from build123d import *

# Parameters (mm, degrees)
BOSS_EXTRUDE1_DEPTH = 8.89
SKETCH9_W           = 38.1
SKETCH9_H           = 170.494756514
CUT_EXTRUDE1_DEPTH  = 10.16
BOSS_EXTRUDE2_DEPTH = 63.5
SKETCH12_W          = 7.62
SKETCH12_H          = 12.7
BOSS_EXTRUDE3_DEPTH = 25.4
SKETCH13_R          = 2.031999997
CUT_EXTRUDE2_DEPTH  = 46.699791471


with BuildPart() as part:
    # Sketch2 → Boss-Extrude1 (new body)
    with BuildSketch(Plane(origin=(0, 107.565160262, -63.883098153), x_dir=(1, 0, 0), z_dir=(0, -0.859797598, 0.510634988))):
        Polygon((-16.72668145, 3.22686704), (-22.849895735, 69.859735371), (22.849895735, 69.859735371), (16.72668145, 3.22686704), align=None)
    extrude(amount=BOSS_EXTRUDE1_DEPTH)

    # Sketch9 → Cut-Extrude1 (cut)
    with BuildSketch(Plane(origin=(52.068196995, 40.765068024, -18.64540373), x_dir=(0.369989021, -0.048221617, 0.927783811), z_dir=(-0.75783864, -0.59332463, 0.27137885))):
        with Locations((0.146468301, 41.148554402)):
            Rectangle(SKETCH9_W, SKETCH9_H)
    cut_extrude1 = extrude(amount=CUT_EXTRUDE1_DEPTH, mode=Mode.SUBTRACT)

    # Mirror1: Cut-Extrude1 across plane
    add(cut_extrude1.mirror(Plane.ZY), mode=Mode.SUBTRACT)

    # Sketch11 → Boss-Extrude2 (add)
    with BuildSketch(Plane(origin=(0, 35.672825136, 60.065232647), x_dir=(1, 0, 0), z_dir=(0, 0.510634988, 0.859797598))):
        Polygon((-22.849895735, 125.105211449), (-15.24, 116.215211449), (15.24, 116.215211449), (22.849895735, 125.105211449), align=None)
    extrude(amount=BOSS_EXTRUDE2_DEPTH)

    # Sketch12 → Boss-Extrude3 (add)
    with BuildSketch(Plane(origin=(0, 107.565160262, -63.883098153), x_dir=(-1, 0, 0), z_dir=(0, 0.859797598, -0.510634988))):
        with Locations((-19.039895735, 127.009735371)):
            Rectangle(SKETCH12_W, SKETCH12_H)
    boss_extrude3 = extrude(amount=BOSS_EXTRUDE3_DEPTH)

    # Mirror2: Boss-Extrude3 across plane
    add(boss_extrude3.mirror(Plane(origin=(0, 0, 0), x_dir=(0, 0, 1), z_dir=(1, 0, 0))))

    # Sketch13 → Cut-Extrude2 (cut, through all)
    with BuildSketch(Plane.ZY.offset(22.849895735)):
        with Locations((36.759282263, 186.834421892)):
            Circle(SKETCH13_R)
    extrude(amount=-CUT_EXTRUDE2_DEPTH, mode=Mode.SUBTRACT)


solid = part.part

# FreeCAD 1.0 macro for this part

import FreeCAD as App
import Part
import Sketcher

V = App.Vector
Q = App.Units.Quantity


def add_polygon(sketch, points):
    """Adds a closed chain of lines whose ends are joined by coincident constraints."""
    first, n = sketch.GeometryCount, len(points)
    for a, b in zip(points, points[1:] + points[:1]):
        sketch.addGeometry(Part.LineSegment(App.Vector(*a, 0), App.Vector(*b, 0)), False)
    for i in range(n):
        sketch.addConstraint(Sketcher.Constraint("Coincident", first + i, 2, first + (i + 1) % n, 1))

doc = App.newDocument("Part")
body = doc.addObject("PartDesign::Body", "Body")

sketch1 = doc.addObject("Sketcher::SketchObject", "Sketch")
body.addObject(sketch1)
sketch1.Placement = App.Placement(V(0, 107.56516, -63.883098), App.Rotation(V(1, 0, 0), V(0, 0.510634988, 0.859797598), V(0, -0.859797598, 0.510634988), "ZXY"))
add_polygon(sketch1, [(-23, 70), (-17, 3), (17, 3), (23, 70)])
sketch1.addConstraint([
    Sketcher.Constraint("Horizontal", 1),
    Sketcher.Constraint("Horizontal", 3),
    Sketcher.Constraint("Equal", 0, 2),
    Sketcher.Constraint("DistanceX", 3, 2, 3, 1, 45.699791),
    Sketcher.Constraint("DistanceX", 1, 1, 1, 2, 33.453363),
    Sketcher.Constraint("DistanceX", 0, 2, -1, 1, 16.726681),
    Sketcher.Constraint("DistanceY", 1, 2, 2, 2, 66.632868),
    Sketcher.Constraint("DistanceY", -1, 1, 0, 2, 3.226867),
])
pad1 = doc.addObject("PartDesign::Pad", "Pad")
body.addObject(pad1)
pad1.Profile = sketch1
pad1.Length = Q("0.35 in")

sketch2 = doc.addObject("Sketcher::SketchObject", "Sketch001")
body.addObject(sketch2)
sketch2.Placement = App.Placement(V(52.068197, 40.765068, -18.645404), App.Rotation(V(0.369989021, -0.048221617, 0.927783811), V(-0.537390659, 0.803517617, 0.256067804), V(-0.75783864, -0.59332463, 0.27137885), "ZXY"))
add_polygon(sketch2, [(-19, 126), (-19, -44), (19, -44), (19, 126)])
sketch2.addConstraint([
    Sketcher.Constraint("Vertical", 0),
    Sketcher.Constraint("Horizontal", 1),
    Sketcher.Constraint("Vertical", 2),
    Sketcher.Constraint("Horizontal", 3),
    Sketcher.Constraint("DistanceX", 1, 1, 1, 2, Q("1.5 in")),
    Sketcher.Constraint("DistanceY", 0, 2, 0, 1, 170.494757),
    Sketcher.Constraint("DistanceX", 0, 2, -1, 1, 18.903532),
    Sketcher.Constraint("DistanceY", 0, 2, -1, 1, 44.098824),
])
pocket1 = doc.addObject("PartDesign::Pocket", "Pocket")
body.addObject(pocket1)
pocket1.Profile = sketch2
pocket1.Length = Q("0.4 in")
pocket1.Reversed = True
doc.recompute()

mirrored = doc.addObject("PartDesign::Mirrored", "Mirrored")
body.addObject(mirrored)
mirrored.Originals = [pocket1]
mirrored.MirrorPlane = (doc.YZ_Plane, [""])
body.Tip = mirrored

sketch3 = doc.addObject("Sketcher::SketchObject", "Sketch002")
body.addObject(sketch3)
sketch3.Placement = App.Placement(V(0, 35.672825, 60.065233), App.Rotation(V(1, 0, 0), V(0, 0.859797598, -0.510634988), V(0, 0.510634988, 0.859797598), "ZXY"))
add_polygon(sketch3, [(-23, 125), (-15, 116), (15, 116), (23, 125)])
sketch3.addConstraint([
    Sketcher.Constraint("Horizontal", 1),
    Sketcher.Constraint("Horizontal", 3),
    Sketcher.Constraint("Equal", 0, 2),
    Sketcher.Constraint("DistanceX", 1, 1, 1, 2, Q("1.2 in")),
    Sketcher.Constraint("DistanceX", 0, 2, -1, 1, Q("0.6 in")),
    Sketcher.Constraint("DistanceY", 1, 2, 2, 2, Q("0.35 in")),
    Sketcher.Constraint("DistanceX", 3, 2, 3, 1, 45.699791),
    Sketcher.Constraint("DistanceY", -1, 1, 0, 2, 116.215212),
])
pad2 = doc.addObject("PartDesign::Pad", "Pad001")
body.addObject(pad2)
pad2.Profile = sketch3
pad2.Length = Q("2.5 in")

sketch4 = doc.addObject("Sketcher::SketchObject", "Sketch003")
body.addObject(sketch4)
sketch4.Placement = App.Placement(V(0, 107.56516, -63.883098), App.Rotation(V(-1, 0, 0), V(0, 0.510634988, 0.859797598), V(0, 0.859797598, -0.510634988), "ZXY"))
add_polygon(sketch4, [(-23, 133), (-23, 121), (-15, 121), (-15, 133)])
sketch4.addConstraint([
    Sketcher.Constraint("Vertical", 0),
    Sketcher.Constraint("Horizontal", 1),
    Sketcher.Constraint("Vertical", 2),
    Sketcher.Constraint("Horizontal", 3),
    Sketcher.Constraint("DistanceX", 1, 1, 1, 2, Q("0.3 in")),
    Sketcher.Constraint("DistanceY", 0, 2, 0, 1, Q("0.5 in")),
    Sketcher.Constraint("DistanceX", 0, 2, -1, 1, 22.849896),
    Sketcher.Constraint("DistanceY", -1, 1, 0, 2, 120.659735),
])
pad3 = doc.addObject("PartDesign::Pad", "Pad002")
body.addObject(pad3)
pad3.Profile = sketch4
pad3.Length = Q("1 in")
doc.recompute()

mirrored2 = doc.addObject("PartDesign::Mirrored", "Mirrored001")
body.addObject(mirrored2)
mirrored2.Originals = [pad3]
mirrored2.MirrorPlane = (doc.YZ_Plane, [""])
body.Tip = mirrored2

sketch5 = doc.addObject("Sketcher::SketchObject", "Sketch004")
body.addObject(sketch5)
sketch5.AttachmentSupport = (doc.YZ_Plane, [""])
sketch5.MapMode = "FlatFace"
sketch5.AttachmentOffset = App.Placement(V(0, 0, -22.849896), App.Rotation())
sketch5.addGeometry(Part.Circle(V(186.8, 36.8, 0), V(0, 0, 1), 2), False)
sketch5.addConstraint([
    Sketcher.Constraint("Diameter", 0, Q("0.16 in")),
    Sketcher.Constraint("DistanceX", -1, 1, 0, 3, 186.834422),
    Sketcher.Constraint("DistanceY", -1, 1, 0, 3, 36.759282),
])
pocket2 = doc.addObject("PartDesign::Pocket", "Pocket001")
body.addObject(pocket2)
pocket2.Profile = sketch5
pocket2.Type = "ThroughAll"
pocket2.Reversed = True

doc.recompute()
